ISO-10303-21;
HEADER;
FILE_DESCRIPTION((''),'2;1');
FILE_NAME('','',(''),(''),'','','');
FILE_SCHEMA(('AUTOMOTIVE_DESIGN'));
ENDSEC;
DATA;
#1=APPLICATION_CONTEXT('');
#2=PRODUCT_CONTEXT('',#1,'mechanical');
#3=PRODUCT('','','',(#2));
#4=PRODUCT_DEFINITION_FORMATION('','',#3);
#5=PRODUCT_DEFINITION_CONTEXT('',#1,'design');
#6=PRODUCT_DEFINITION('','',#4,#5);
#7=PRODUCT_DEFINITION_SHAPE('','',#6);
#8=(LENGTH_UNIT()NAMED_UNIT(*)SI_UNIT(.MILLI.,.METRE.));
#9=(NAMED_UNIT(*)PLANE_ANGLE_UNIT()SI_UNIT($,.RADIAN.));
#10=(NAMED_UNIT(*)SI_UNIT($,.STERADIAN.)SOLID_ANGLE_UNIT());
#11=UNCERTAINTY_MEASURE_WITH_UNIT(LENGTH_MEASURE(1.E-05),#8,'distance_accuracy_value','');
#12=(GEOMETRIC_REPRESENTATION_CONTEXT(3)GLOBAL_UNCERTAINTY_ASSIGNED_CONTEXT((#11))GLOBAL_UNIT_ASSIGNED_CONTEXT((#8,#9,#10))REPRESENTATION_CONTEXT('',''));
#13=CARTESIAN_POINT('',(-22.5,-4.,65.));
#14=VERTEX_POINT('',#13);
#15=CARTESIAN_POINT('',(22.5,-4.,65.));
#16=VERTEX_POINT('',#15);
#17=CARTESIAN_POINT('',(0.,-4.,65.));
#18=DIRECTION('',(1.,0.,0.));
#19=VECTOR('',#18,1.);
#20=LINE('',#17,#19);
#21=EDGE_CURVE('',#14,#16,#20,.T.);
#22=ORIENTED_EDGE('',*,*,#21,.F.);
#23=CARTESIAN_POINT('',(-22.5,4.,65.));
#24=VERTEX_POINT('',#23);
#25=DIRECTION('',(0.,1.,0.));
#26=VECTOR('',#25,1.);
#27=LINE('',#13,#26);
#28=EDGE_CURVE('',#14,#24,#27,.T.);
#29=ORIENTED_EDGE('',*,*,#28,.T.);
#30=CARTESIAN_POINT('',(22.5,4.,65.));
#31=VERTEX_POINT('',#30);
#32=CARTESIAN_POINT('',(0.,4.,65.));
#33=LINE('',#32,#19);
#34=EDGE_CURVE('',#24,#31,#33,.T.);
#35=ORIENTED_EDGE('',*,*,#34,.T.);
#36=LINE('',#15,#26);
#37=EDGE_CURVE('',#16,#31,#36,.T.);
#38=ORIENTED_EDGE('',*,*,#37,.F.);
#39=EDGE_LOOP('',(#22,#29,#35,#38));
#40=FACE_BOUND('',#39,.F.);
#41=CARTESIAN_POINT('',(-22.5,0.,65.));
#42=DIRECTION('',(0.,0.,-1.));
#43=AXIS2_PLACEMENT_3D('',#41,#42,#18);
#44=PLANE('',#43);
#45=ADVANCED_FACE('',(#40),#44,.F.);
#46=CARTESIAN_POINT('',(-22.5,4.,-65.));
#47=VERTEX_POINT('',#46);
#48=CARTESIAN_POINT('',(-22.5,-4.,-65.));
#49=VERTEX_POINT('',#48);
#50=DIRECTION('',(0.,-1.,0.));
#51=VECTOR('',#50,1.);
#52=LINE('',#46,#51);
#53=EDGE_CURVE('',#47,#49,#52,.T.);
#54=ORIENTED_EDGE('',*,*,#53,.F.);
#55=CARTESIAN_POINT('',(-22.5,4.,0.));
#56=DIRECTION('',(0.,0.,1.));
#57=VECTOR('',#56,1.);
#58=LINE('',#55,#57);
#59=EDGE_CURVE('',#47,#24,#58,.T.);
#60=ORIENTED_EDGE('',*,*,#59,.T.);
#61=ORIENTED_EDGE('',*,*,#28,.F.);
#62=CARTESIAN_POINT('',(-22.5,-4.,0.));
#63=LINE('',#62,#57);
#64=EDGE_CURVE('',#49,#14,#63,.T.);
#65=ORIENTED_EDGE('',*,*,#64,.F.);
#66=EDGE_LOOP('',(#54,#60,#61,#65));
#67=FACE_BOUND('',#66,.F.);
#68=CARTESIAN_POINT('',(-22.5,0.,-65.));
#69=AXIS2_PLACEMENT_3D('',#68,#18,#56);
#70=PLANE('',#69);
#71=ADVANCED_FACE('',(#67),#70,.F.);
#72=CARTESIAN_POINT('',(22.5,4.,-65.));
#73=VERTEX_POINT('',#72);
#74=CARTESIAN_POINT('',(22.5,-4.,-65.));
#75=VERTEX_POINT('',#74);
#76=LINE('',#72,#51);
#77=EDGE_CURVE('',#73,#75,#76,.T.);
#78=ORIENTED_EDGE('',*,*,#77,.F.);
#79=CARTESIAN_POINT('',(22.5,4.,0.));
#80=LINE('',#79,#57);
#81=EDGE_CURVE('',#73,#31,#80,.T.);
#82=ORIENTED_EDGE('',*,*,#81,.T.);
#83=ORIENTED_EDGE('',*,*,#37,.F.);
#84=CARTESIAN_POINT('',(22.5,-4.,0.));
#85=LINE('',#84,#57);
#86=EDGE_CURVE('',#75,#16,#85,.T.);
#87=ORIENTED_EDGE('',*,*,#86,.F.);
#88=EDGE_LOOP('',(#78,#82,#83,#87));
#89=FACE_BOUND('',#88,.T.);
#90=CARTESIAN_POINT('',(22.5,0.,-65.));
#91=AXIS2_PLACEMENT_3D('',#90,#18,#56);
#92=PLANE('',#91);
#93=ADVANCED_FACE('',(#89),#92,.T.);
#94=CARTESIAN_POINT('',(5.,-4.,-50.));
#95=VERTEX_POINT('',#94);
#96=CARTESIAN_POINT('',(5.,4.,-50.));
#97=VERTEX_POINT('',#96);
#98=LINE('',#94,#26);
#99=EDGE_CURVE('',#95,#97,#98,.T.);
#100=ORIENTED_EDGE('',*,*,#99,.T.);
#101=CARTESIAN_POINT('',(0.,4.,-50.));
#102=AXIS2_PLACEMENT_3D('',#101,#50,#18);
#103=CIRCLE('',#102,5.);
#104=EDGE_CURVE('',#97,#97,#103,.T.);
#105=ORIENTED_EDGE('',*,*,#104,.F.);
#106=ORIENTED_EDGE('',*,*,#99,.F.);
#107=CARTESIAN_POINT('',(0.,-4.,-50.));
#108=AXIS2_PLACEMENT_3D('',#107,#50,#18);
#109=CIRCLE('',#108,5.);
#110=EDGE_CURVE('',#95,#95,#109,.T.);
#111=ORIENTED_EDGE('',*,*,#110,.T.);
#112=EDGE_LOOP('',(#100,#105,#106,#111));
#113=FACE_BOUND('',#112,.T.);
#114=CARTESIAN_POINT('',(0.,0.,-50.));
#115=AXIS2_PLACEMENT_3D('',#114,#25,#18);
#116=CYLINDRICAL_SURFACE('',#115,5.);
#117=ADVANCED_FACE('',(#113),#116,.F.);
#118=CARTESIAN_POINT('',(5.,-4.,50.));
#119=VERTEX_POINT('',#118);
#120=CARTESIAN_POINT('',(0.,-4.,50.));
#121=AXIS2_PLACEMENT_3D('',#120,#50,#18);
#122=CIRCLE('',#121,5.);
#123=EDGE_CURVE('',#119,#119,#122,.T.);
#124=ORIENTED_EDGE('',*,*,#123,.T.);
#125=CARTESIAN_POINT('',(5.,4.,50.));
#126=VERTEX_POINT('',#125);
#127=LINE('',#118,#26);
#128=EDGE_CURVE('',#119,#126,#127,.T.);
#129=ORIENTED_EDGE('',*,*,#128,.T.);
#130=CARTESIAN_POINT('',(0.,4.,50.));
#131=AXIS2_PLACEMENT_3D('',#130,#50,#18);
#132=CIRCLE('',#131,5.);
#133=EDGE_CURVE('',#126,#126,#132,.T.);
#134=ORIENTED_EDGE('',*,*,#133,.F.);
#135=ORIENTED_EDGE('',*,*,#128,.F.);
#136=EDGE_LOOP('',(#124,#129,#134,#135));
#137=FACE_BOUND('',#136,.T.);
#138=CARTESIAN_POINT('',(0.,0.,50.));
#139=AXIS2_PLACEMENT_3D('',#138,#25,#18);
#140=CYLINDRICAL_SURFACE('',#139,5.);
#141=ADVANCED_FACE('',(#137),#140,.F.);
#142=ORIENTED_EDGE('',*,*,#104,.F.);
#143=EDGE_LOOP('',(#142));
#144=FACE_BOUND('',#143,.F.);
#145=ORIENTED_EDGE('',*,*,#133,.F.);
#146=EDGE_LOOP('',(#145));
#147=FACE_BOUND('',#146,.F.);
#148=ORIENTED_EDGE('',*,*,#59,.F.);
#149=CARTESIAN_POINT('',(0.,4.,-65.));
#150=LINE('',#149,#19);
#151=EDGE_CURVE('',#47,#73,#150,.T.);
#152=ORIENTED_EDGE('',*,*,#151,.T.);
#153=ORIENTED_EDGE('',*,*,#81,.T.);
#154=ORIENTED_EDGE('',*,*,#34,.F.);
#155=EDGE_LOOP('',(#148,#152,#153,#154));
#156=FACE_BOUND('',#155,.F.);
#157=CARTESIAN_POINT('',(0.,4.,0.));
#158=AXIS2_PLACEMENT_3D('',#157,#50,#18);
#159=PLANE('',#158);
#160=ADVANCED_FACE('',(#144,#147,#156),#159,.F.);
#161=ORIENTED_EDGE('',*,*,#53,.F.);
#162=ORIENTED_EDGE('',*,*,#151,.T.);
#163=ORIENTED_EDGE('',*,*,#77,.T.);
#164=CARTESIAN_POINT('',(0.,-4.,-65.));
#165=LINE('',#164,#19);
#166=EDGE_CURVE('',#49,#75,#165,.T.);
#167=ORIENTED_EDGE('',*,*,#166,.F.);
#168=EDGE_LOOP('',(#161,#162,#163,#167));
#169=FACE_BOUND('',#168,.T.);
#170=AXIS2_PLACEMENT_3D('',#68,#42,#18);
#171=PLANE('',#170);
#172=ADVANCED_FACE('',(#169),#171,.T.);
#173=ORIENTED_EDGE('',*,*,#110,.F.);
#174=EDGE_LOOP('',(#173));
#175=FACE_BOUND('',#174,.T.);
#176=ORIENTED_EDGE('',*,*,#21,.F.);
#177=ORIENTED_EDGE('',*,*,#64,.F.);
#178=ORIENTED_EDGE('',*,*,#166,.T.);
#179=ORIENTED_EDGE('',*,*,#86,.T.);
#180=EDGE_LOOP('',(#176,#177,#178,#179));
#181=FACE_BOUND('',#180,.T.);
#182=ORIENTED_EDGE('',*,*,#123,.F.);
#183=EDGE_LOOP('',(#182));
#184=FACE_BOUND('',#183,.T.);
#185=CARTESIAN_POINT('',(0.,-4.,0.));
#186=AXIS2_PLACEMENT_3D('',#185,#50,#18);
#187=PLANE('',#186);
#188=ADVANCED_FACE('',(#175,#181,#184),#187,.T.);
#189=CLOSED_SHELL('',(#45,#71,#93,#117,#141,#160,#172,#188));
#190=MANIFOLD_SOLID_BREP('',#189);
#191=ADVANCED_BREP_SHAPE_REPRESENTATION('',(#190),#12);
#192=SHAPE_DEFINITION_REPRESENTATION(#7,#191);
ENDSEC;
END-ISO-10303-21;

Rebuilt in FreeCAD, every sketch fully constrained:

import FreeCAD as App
import Part
import Sketcher
Q = App.Units.Quantity


def add_polygon(sketch, points):
    """Adds a closed chain of lines whose ends are joined by coincident constraints."""
    first, n = sketch.GeometryCount, len(points)
    for a, b in zip(points, points[1:] + points[:1]):
        sketch.addGeometry(Part.LineSegment(App.Vector(*a, 0), App.Vector(*b, 0)), False)
    for i in range(n):
        sketch.addConstraint(Sketcher.Constraint("Coincident", first + i, 2, first + (i + 1) % n, 1))

doc = App.newDocument("Part")
body = doc.addObject("PartDesign::Body", "Body")

# Sketch on XZ plane
sketch1 = body.newObject("Sketcher::SketchObject", "Sketch")
sketch1.AttachmentSupport = (doc.getObject("XZ_Plane"), [""])
sketch1.MapMode = "FlatFace"
add_polygon(sketch1, [(-22, 65), (-22, -65), (22, -65), (22, 65)])  # lines 0-3
sketch1.addGeometry(Part.Circle(App.Vector(0, -50, 0), App.Vector(0, 0, 1), 5), False)  # 4
sketch1.addGeometry(Part.Circle(App.Vector(0, 50, 0), App.Vector(0, 0, 1), 5), False)  # 5
sketch1.addConstraint([
    Sketcher.Constraint("Vertical", 0),
    Sketcher.Constraint("Horizontal", 1),
    Sketcher.Constraint("Vertical", 2),
    Sketcher.Constraint("Horizontal", 3),
    Sketcher.Constraint("Equal", 4, 5),
    Sketcher.Constraint("Symmetric", 4, 3, 5, 3, -1, 1),
    Sketcher.Constraint("Symmetric", 0, 2, 2, 2, -1, 1),
    Sketcher.Constraint("PointOnObject", 4, 3, -2),
    Sketcher.Constraint("Diameter", 4, Q("10 mm")),
    Sketcher.Constraint("DistanceX", 1, 1, 1, 2, Q("45 mm")),
    Sketcher.Constraint("DistanceY", 0, 2, 0, 1, Q("130 mm")),
    Sketcher.Constraint("DistanceY", 4, 3, -1, 1, Q("50 mm")),
])
pad1 = body.newObject("PartDesign::Pad", "Pad")
pad1.Profile = sketch1
pad1.Length = 8
pad1.Midplane = True

doc.recompute()
